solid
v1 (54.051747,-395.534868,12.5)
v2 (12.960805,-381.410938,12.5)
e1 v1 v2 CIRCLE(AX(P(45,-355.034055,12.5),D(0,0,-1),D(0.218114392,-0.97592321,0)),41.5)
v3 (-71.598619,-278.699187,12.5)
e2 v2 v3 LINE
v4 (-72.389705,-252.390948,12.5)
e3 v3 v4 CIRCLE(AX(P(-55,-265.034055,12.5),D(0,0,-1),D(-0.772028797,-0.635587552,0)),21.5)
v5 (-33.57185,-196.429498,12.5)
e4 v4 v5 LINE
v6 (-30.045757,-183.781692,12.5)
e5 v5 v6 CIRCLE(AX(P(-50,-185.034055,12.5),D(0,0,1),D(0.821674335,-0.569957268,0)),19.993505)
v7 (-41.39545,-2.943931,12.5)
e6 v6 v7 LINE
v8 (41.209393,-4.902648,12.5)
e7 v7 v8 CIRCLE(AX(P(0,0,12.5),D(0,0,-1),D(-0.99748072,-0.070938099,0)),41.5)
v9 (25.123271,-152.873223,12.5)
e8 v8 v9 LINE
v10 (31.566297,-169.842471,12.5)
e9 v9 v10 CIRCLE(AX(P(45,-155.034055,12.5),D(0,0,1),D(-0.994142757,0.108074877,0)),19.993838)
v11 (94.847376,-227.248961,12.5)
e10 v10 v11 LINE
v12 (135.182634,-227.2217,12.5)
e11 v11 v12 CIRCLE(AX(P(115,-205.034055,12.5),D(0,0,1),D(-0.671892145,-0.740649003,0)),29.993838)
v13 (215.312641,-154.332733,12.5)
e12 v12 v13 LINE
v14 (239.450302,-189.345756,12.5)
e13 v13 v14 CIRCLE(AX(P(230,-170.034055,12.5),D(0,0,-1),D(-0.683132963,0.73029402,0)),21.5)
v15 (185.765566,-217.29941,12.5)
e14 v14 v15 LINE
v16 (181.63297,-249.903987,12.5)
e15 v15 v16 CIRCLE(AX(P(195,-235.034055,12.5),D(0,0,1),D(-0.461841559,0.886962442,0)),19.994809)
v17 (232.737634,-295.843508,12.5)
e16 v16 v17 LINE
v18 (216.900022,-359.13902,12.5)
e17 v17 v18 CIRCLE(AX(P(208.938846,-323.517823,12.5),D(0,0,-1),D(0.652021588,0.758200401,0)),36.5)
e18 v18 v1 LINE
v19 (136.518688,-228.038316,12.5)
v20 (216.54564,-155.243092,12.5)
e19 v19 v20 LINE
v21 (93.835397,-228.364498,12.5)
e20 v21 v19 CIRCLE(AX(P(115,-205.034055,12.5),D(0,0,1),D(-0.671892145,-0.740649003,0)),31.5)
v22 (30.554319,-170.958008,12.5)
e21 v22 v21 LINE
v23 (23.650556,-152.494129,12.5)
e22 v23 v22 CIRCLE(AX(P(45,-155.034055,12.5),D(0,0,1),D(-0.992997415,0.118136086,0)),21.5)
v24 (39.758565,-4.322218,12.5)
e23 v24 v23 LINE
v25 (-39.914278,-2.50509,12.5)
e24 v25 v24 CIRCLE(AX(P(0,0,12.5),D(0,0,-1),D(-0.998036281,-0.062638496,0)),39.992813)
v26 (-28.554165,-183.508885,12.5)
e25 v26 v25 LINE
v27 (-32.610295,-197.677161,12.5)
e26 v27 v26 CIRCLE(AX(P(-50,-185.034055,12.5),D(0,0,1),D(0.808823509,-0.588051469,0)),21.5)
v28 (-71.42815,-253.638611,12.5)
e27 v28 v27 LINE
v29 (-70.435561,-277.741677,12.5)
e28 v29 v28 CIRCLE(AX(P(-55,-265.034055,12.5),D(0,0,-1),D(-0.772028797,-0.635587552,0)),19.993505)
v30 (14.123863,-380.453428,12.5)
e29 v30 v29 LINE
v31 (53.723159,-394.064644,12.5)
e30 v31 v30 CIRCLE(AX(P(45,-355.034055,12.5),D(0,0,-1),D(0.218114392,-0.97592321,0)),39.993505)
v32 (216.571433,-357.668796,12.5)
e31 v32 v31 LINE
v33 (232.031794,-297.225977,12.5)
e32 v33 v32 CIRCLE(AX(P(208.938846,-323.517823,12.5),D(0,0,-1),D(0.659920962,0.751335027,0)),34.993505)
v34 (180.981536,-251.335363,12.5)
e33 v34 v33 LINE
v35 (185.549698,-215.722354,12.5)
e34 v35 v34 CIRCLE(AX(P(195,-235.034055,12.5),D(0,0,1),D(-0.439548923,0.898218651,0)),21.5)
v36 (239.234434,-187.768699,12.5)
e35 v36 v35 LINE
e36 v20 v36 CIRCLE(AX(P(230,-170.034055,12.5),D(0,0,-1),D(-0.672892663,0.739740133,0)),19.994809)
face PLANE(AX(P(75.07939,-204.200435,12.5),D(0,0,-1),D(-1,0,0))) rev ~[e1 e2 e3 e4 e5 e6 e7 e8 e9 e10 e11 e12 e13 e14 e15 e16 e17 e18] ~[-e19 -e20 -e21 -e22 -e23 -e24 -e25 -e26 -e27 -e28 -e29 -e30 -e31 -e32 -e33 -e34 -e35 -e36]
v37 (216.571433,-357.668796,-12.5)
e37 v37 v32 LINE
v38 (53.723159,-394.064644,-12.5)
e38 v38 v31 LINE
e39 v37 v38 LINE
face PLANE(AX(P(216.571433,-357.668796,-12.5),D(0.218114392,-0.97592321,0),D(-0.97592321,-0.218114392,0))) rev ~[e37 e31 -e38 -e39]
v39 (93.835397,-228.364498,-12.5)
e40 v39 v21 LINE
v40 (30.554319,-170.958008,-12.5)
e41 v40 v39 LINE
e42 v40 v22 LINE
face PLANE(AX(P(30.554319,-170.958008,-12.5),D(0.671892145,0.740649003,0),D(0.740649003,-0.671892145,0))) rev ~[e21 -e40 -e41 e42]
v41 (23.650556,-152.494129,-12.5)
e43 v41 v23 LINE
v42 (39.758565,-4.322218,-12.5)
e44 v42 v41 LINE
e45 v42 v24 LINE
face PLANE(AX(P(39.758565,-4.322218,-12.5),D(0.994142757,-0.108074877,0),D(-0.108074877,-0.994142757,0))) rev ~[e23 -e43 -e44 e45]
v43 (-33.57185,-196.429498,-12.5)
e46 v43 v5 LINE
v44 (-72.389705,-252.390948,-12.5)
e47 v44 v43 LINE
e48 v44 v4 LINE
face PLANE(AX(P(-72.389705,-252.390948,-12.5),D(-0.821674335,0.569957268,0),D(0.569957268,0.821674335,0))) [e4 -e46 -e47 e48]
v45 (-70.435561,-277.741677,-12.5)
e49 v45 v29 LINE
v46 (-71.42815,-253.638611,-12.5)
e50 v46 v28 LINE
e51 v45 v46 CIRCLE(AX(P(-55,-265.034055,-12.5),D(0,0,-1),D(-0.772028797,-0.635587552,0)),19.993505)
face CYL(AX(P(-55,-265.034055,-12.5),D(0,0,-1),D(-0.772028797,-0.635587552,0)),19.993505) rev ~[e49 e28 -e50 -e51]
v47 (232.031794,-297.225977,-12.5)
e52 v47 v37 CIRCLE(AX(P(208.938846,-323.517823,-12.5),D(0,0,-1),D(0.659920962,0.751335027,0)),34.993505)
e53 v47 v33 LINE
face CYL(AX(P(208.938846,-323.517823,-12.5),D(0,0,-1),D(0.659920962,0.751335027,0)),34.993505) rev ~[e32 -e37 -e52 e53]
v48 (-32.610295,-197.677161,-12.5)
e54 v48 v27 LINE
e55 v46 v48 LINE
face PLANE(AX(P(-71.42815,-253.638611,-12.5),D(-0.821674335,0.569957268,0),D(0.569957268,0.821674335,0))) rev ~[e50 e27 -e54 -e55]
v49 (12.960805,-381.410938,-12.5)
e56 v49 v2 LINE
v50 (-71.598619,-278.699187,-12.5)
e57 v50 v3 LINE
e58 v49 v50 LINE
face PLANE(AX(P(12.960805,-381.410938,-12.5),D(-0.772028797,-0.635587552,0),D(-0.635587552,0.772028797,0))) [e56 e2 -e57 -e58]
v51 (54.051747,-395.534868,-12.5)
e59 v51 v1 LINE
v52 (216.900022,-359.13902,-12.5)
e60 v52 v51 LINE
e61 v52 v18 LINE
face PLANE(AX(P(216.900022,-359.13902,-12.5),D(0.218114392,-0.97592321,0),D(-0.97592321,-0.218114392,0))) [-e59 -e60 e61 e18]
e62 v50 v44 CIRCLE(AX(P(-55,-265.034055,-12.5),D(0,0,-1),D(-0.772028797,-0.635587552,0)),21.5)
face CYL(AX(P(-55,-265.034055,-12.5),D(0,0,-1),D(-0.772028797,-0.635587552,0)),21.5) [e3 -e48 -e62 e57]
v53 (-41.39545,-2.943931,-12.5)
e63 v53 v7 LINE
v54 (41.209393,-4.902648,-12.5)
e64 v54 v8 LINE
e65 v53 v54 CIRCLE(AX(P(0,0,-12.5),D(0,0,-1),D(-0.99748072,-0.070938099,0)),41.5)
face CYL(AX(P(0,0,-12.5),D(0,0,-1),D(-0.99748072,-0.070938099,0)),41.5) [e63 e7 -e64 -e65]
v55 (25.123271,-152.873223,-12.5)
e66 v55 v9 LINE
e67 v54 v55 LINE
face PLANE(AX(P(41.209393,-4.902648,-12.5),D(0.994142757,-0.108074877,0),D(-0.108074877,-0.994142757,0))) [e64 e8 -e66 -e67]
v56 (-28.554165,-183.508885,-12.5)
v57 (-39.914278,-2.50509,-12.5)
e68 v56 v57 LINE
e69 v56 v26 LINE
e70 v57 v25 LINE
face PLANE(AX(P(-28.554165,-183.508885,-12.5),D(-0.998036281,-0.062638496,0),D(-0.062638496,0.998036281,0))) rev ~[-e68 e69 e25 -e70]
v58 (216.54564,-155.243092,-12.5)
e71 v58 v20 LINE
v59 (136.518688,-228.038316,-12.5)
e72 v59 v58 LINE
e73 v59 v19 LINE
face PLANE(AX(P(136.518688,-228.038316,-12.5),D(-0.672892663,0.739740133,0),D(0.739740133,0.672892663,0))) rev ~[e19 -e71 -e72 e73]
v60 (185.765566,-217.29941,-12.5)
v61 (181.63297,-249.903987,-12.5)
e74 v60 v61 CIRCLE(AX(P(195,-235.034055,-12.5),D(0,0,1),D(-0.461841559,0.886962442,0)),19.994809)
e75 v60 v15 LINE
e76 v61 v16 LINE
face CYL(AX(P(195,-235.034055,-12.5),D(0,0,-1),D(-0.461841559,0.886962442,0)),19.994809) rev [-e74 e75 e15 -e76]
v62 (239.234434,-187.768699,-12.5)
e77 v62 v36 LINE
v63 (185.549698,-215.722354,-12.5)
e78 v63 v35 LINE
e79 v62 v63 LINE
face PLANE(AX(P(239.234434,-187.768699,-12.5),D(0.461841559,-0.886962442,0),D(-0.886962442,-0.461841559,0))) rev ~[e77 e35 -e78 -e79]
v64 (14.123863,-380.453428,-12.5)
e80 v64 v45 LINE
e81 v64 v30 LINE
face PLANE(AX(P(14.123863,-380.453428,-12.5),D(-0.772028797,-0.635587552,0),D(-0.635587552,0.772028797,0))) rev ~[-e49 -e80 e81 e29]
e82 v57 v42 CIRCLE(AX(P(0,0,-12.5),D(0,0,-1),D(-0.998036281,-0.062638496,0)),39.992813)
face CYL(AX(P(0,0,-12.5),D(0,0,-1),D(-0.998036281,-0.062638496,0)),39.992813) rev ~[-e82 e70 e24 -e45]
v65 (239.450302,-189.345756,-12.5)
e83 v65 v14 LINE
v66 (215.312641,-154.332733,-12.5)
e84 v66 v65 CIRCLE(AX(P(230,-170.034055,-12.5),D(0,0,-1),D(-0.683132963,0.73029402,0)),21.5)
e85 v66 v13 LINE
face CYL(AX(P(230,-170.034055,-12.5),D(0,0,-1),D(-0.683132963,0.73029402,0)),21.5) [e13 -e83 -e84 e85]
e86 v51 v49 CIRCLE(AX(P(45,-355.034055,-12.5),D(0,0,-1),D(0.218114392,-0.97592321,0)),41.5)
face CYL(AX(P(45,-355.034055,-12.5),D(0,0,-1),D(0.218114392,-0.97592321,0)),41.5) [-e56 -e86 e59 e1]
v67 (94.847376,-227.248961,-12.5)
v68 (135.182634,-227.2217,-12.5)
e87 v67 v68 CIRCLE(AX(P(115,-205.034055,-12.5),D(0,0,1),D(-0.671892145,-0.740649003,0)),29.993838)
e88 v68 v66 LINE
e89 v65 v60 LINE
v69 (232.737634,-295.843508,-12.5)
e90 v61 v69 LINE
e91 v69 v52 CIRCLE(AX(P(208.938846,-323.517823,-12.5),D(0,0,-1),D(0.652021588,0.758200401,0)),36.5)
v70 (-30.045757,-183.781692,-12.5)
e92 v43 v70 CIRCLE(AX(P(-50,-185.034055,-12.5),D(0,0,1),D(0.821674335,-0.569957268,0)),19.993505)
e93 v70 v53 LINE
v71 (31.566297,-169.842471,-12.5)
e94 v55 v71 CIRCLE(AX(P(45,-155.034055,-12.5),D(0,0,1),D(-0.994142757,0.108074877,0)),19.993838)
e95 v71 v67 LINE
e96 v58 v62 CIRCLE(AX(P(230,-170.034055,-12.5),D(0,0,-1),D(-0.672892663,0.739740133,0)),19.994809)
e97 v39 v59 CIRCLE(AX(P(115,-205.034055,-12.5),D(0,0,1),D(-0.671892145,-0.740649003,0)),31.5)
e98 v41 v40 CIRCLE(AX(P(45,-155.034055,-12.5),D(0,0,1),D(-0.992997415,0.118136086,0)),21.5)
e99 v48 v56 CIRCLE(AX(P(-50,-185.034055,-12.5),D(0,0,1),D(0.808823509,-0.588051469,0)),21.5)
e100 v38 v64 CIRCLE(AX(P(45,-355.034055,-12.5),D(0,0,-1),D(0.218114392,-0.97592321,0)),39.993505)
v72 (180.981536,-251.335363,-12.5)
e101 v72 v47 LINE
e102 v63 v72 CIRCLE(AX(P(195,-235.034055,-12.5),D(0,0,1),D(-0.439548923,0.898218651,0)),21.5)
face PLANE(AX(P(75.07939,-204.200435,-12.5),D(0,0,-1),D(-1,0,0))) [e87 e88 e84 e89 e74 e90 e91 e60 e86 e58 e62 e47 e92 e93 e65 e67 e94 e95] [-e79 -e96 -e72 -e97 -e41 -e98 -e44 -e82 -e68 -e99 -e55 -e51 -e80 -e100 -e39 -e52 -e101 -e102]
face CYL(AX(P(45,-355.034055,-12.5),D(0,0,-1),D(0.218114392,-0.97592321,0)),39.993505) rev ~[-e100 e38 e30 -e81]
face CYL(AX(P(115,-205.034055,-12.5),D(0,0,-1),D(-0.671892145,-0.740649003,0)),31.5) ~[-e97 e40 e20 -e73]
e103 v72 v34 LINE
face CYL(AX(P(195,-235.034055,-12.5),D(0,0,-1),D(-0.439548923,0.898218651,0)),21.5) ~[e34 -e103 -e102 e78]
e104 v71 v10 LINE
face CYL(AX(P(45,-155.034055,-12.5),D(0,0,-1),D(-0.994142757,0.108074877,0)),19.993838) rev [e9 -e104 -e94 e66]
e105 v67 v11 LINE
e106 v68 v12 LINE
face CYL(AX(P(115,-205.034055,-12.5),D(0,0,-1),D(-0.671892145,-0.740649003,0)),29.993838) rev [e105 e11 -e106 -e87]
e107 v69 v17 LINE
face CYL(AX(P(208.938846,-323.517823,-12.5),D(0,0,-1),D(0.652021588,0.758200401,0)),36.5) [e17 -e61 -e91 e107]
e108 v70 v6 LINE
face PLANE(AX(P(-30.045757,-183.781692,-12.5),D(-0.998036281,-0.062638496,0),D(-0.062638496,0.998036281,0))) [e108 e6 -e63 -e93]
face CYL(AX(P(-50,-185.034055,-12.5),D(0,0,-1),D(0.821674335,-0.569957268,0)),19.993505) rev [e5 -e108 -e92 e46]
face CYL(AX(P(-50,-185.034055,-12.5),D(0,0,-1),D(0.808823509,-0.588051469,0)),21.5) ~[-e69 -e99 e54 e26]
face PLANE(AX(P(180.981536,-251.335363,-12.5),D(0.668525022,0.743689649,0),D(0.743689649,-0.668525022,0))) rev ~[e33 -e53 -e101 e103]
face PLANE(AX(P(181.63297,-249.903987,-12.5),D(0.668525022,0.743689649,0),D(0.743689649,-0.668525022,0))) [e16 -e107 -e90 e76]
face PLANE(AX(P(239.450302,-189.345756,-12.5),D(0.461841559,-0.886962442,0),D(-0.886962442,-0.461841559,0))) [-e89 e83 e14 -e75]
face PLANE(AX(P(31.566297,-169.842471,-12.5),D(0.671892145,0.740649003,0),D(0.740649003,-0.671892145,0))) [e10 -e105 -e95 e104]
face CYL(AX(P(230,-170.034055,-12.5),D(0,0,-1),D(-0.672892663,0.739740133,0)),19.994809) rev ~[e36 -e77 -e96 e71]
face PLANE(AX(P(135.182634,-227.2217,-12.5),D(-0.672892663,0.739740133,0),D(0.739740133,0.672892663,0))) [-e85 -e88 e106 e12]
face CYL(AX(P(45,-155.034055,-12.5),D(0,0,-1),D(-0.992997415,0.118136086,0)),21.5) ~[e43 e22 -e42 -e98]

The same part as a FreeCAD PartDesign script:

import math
import FreeCAD as App
import Part
import Sketcher

V = App.Vector

doc = App.newDocument("Part")
body = doc.addObject("PartDesign::Body", "Body")

sketch1 = doc.addObject("Sketcher::SketchObject", "Sketch")
body.addObject(sketch1)
sketch1.AttachmentSupport = (doc.XY_Plane, [""])
sketch1.MapMode = "FlatFace"
sketch1.addGeometry([
    Part.LineSegment(V(25.123271, -152.873223, 0), V(41.209393, -4.902648, 0)),
    Part.ArcOfCircle(Part.Circle(V(0, 0, 0), V(0, 0, 1), 41.5), math.radians(-6.784543), math.radians(184.06787)),
    Part.LineSegment(V(-41.39545, -2.943931, 0), V(-30.045757, -183.781692, 0)),
    Part.ArcOfCircle(Part.Circle(V(-50, -185.034055, 0), V(0, 0, 1), 19.993505), math.radians(-34.747246), math.radians(3.591272)),
    Part.LineSegment(V(-33.57185, -196.429498, 0), V(-72.389705, -252.390948, 0)),
    Part.ArcOfCircle(Part.Circle(V(-55, -265.034055, 0), V(0, 0, 1), 21.5), math.radians(143.981144), math.radians(219.463576)),
    Part.LineSegment(V(-71.598619, -278.699187, 0), V(12.960805, -381.410938, 0)),
    Part.ArcOfCircle(Part.Circle(V(45, -355.034055, 0), V(0, 0, 1), 41.5), math.radians(-140.536424), math.radians(-77.401694)),
    Part.LineSegment(V(54.051747, -395.534868, 0), V(216.900022, -359.13902, 0)),
    Part.ArcOfCircle(Part.Circle(V(208.938846, -323.517823, 0), V(0, 0, 1), 36.5), math.radians(-77.401694), math.radians(49.305805)),
    Part.LineSegment(V(232.737634, -295.843508, 0), V(181.63297, -249.903987, 0)),
    Part.ArcOfCircle(Part.Circle(V(195, -235.034055, 0), V(0, 0, 1), 19.994809), math.radians(117.506004), math.radians(228.046673)),
    Part.LineSegment(V(185.765566, -217.29941, 0), V(239.450302, -189.345756, 0)),
    Part.ArcOfCircle(Part.Circle(V(230, -170.034055, 0), V(0, 0, 1), 21.5), math.radians(-63.924896), math.radians(133.088952)),
    Part.LineSegment(V(215.312641, -154.332733, 0), V(135.182634, -227.2217, 0)),
    Part.ArcOfCircle(Part.Circle(V(115, -205.034055, 0), V(0, 0, 1), 29.993838), math.radians(-132.21327), math.radians(-47.709284)),
    Part.LineSegment(V(94.847376, -227.248961, 0), V(31.566297, -169.842471, 0)),
    Part.ArcOfCircle(Part.Circle(V(45, -155.034055, 0), V(0, 0, 1), 19.993838), math.radians(173.795647), math.radians(227.78673)),
    Part.LineSegment(V(39.758565, -4.322218, 0), V(23.650556, -152.494129, 0)),
    Part.ArcOfCircle(Part.Circle(V(45, -155.034055, 0), V(0, 0, 1), 21.5), math.radians(173.215457), math.radians(227.78673)),
    Part.LineSegment(V(30.554319, -170.958008, 0), V(93.835397, -228.364498, 0)),
    Part.ArcOfCircle(Part.Circle(V(115, -205.034055, 0), V(0, 0, 1), 31.5), math.radians(-132.21327), math.radians(-46.911048)),
    Part.LineSegment(V(136.518688, -228.038316, 0), V(216.54564, -155.243092, 0)),
    Part.ArcOfCircle(Part.Circle(V(230, -170.034055, 0), V(0, 0, 1), 19.994809), math.radians(-62.493996), math.radians(132.290716)),
    Part.LineSegment(V(239.234434, -187.768699, 0), V(185.549698, -215.722354, 0)),
    Part.ArcOfCircle(Part.Circle(V(195, -235.034055, 0), V(0, 0, 1), 21.5), math.radians(116.075104), math.radians(229.305805)),
    Part.LineSegment(V(180.981536, -251.335363, 0), V(232.031794, -297.225977, 0)),
    Part.ArcOfCircle(Part.Circle(V(208.938846, -323.517823, 0), V(0, 0, 1), 34.993505), math.radians(-77.401694), math.radians(48.706155)),
    Part.LineSegment(V(216.571433, -357.668796, 0), V(53.723159, -394.064644, 0)),
    Part.ArcOfCircle(Part.Circle(V(45, -355.034055, 0), V(0, 0, 1), 39.993505), math.radians(-140.536424), math.radians(-77.401694)),
    Part.LineSegment(V(14.123863, -380.453428, 0), V(-70.435561, -277.741677, 0)),
    Part.ArcOfCircle(Part.Circle(V(-55, -265.034055, 0), V(0, 0, 1), 19.993505), math.radians(145.252754), math.radians(219.463576)),
    Part.LineSegment(V(-71.42815, -253.638611, 0), V(-32.610295, -197.677161, 0)),
    Part.ArcOfCircle(Part.Circle(V(-50, -185.034055, 0), V(0, 0, 1), 21.5), math.radians(-36.018856), math.radians(4.06787)),
    Part.LineSegment(V(-28.554165, -183.508885, 0), V(-39.914278, -2.50509, 0)),
    Part.ArcOfCircle(Part.Circle(V(0, 0, 0), V(0, 0, 1), 39.992813), math.radians(-6.204353), math.radians(183.591272)),
], False)
sketch1.addConstraint([
    Sketcher.Constraint("Coincident", 0, 2, 1, 1),
    Sketcher.Constraint("Coincident", 1, 2, 2, 1),
    Sketcher.Constraint("Coincident", 2, 2, 3, 2),
    Sketcher.Constraint("Coincident", 3, 1, 4, 1),
    Sketcher.Constraint("Coincident", 4, 2, 5, 1),
    Sketcher.Constraint("Coincident", 5, 2, 6, 1),
    Sketcher.Constraint("Coincident", 6, 2, 7, 1),
    Sketcher.Constraint("Coincident", 7, 2, 8, 1),
    Sketcher.Constraint("Coincident", 8, 2, 9, 1),
    Sketcher.Constraint("Coincident", 9, 2, 10, 1),
    Sketcher.Constraint("Coincident", 10, 2, 11, 2),
    Sketcher.Constraint("Coincident", 11, 1, 12, 1),
    Sketcher.Constraint("Coincident", 12, 2, 13, 1),
    Sketcher.Constraint("Coincident", 13, 2, 14, 1),
    Sketcher.Constraint("Coincident", 14, 2, 15, 2),
    Sketcher.Constraint("Coincident", 15, 1, 16, 1),
    Sketcher.Constraint("Coincident", 16, 2, 17, 2),
    Sketcher.Constraint("Coincident", 17, 1, 0, 1),
    Sketcher.Constraint("Coincident", 18, 2, 19, 1),
    Sketcher.Constraint("Coincident", 19, 2, 20, 1),
    Sketcher.Constraint("Coincident", 20, 2, 21, 1),
    Sketcher.Constraint("Coincident", 21, 2, 22, 1),
    Sketcher.Constraint("Coincident", 22, 2, 23, 2),
    Sketcher.Constraint("Coincident", 23, 1, 24, 1),
    Sketcher.Constraint("Coincident", 24, 2, 25, 1),
    Sketcher.Constraint("Coincident", 25, 2, 26, 1),
    Sketcher.Constraint("Coincident", 26, 2, 27, 2),
    Sketcher.Constraint("Coincident", 27, 1, 28, 1),
    Sketcher.Constraint("Coincident", 28, 2, 29, 2),
    Sketcher.Constraint("Coincident", 29, 1, 30, 1),
    Sketcher.Constraint("Coincident", 30, 2, 31, 2),
    Sketcher.Constraint("Coincident", 31, 1, 32, 1),
    Sketcher.Constraint("Coincident", 32, 2, 33, 1),
    Sketcher.Constraint("Coincident", 33, 2, 34, 1),
    Sketcher.Constraint("Coincident", 34, 2, 35, 2),
    Sketcher.Constraint("Coincident", 35, 1, 18, 1),
    Sketcher.Constraint("Coincident", 1, 3, -1, 1),
    Sketcher.Constraint("Coincident", 35, 3, -1, 1),
    Sketcher.Constraint("Coincident", 19, 3, 17, 3),
    Sketcher.Constraint("Coincident", 21, 3, 15, 3),
    Sketcher.Constraint("Coincident", 23, 3, 13, 3),
    Sketcher.Constraint("Coincident", 25, 3, 11, 3),
    Sketcher.Constraint("Coincident", 27, 3, 9, 3),
    Sketcher.Constraint("Coincident", 29, 3, 7, 3),
    Sketcher.Constraint("Coincident", 31, 3, 5, 3),
    Sketcher.Constraint("Coincident", 33, 3, 3, 3),
    Sketcher.Constraint("Radius", 1, 41.5),
    Sketcher.Constraint("Radius", 5, 21.5),
    Sketcher.Constraint("Radius", 7, 41.5),
    Sketcher.Constraint("Radius", 9, 36.5),
    Sketcher.Constraint("Radius", 13, 21.5),
    Sketcher.Constraint("Radius", 19, 21.5),
    Sketcher.Constraint("Radius", 21, 31.5),
    Sketcher.Constraint("Radius", 25, 21.5),
    Sketcher.Constraint("Radius", 33, 21.5),
    Sketcher.Constraint("DistanceX", 3, 3, -1, 1, 50.0),
    Sketcher.Constraint("DistanceX", 5, 3, -1, 1, 55.0),
    Sketcher.Constraint("DistanceX", -1, 1, 7, 3, 45.0),
    Sketcher.Constraint("DistanceX", -1, 1, 11, 3, 195.0),
    Sketcher.Constraint("DistanceX", -1, 1, 13, 3, 230.0),
    Sketcher.Constraint("DistanceX", -1, 1, 15, 3, 115.0),
    Sketcher.Constraint("DistanceX", -1, 1, 17, 3, 45.0),
    Sketcher.Constraint("DistanceY", 5, 3, 3, 3, 80.0),
    Sketcher.Constraint("DistanceY", 7, 3, 5, 3, 90.0),
    Sketcher.Constraint("DistanceY", 7, 3, 11, 3, 120.0),
    Sketcher.Constraint("DistanceY", 11, 3, 13, 3, 65.0),
    Sketcher.Constraint("DistanceY", 11, 3, 15, 3, 30.0),
    Sketcher.Constraint("DistanceY", 15, 3, 17, 3, 50.0),
    Sketcher.Constraint("Radius", 11, 19.994809),
    Sketcher.Constraint("Radius", 15, 29.993838),
    Sketcher.Constraint("Radius", 17, 19.993838),
    Sketcher.Constraint("Radius", 23, 19.994809),
    Sketcher.Constraint("Radius", 3, 19.993505),
    Sketcher.Constraint("Radius", 27, 34.993505),
    Sketcher.Constraint("Radius", 29, 39.993505),
    Sketcher.Constraint("Radius", 31, 19.993505),
    Sketcher.Constraint("Radius", 35, 39.992813),
    Sketcher.Constraint("DistanceX", 13, 2, 22, 2, 1.232999),
    Sketcher.Constraint("DistanceX", -1, 1, 12, 2, 239.450302),
    Sketcher.Constraint("DistanceY", 14, 2, -1, 1, 227.2217),
    Sketcher.Constraint("DistanceY", 20, 2, -1, 1, 228.364498),
    Sketcher.Constraint("DistanceY", 23, 1, -1, 1, 187.768699),
    Sketcher.Constraint("DistanceX", -1, 1, 24, 2, 185.549698),
    Sketcher.Constraint("DistanceX", 27, 1, 9, 2, 16.166201),
    Sketcher.Constraint("Distance", 0, 148.842381),
    Sketcher.Constraint("Distance", 8, 166.865869),
    Sketcher.Constraint("Distance", 10, 68.71773),
    Sketcher.Constraint("Distance", 22, 108.18252),
    Sketcher.Constraint("Distance", 28, 166.865869),
    Sketcher.Constraint("DistanceX", 1, 2, -1, 1, 41.39545),
    Sketcher.Constraint("DistanceY", 2, 2, -1, 1, 183.781692),
    Sketcher.Constraint("DistanceX", 3, 1, -1, 1, 33.57185),
    Sketcher.Constraint("DistanceY", 4, 2, -1, 1, 252.390948),
    Sketcher.Constraint("DistanceX", 5, 2, -1, 1, 71.598619),
    Sketcher.Constraint("DistanceY", 6, 2, -1, 1, 381.410938),
    Sketcher.Constraint("DistanceX", -1, 1, 8, 2, 216.900022),
    Sketcher.Constraint("DistanceY", 8, 2, -1, 1, 359.13902),
    Sketcher.Constraint("DistanceY", 9, 2, -1, 1, 295.843508),
    Sketcher.Constraint("DistanceX", -1, 1, 10, 2, 181.63297),
    Sketcher.Constraint("DistanceY", 11, 1, -1, 1, 217.29941),
    Sketcher.Constraint("DistanceX", -1, 1, 13, 2, 215.312641),
    Sketcher.Constraint("DistanceY", 15, 1, -1, 1, 227.248961),
    Sketcher.Constraint("DistanceY", 16, 2, -1, 1, 169.842471),
    Sketcher.Constraint("DistanceX", -1, 1, 17, 1, 25.123271),
    Sketcher.Constraint("DistanceY", 18, 2, -1, 1, 152.494129),
    Sketcher.Constraint("DistanceX", -1, 1, 19, 2, 30.554319),
    Sketcher.Constraint("DistanceY", 19, 2, -1, 1, 170.958008),
    Sketcher.Constraint("DistanceY", 29, 1, -1, 1, 380.453428),
    Sketcher.Constraint("DistanceX", 30, 2, -1, 1, 70.435561),
    Sketcher.Constraint("DistanceX", 31, 1, -1, 1, 71.42815),
    Sketcher.Constraint("DistanceY", 32, 2, -1, 1, 197.677161),
    Sketcher.Constraint("DistanceX", 34, 2, -1, 1, 39.914278),
    Sketcher.Constraint("DistanceY", 35, 1, -1, 1, 4.322218),
    Sketcher.Constraint("DistanceY", 25, 2, 25, 3, 16.301309),
    Sketcher.Constraint("DistanceX", 26, 2, 9, 2, 0.705841),
    Sketcher.Constraint("DistanceX", 32, 2, 33, 2, 4.05613),
])
pad1 = doc.addObject("PartDesign::Pad", "Pad")
body.addObject(pad1)
pad1.Profile = sketch1
pad1.Type = "TwoLengths"
pad1.Length = 12.5
pad1.Length2 = 12.5

doc.recompute()
